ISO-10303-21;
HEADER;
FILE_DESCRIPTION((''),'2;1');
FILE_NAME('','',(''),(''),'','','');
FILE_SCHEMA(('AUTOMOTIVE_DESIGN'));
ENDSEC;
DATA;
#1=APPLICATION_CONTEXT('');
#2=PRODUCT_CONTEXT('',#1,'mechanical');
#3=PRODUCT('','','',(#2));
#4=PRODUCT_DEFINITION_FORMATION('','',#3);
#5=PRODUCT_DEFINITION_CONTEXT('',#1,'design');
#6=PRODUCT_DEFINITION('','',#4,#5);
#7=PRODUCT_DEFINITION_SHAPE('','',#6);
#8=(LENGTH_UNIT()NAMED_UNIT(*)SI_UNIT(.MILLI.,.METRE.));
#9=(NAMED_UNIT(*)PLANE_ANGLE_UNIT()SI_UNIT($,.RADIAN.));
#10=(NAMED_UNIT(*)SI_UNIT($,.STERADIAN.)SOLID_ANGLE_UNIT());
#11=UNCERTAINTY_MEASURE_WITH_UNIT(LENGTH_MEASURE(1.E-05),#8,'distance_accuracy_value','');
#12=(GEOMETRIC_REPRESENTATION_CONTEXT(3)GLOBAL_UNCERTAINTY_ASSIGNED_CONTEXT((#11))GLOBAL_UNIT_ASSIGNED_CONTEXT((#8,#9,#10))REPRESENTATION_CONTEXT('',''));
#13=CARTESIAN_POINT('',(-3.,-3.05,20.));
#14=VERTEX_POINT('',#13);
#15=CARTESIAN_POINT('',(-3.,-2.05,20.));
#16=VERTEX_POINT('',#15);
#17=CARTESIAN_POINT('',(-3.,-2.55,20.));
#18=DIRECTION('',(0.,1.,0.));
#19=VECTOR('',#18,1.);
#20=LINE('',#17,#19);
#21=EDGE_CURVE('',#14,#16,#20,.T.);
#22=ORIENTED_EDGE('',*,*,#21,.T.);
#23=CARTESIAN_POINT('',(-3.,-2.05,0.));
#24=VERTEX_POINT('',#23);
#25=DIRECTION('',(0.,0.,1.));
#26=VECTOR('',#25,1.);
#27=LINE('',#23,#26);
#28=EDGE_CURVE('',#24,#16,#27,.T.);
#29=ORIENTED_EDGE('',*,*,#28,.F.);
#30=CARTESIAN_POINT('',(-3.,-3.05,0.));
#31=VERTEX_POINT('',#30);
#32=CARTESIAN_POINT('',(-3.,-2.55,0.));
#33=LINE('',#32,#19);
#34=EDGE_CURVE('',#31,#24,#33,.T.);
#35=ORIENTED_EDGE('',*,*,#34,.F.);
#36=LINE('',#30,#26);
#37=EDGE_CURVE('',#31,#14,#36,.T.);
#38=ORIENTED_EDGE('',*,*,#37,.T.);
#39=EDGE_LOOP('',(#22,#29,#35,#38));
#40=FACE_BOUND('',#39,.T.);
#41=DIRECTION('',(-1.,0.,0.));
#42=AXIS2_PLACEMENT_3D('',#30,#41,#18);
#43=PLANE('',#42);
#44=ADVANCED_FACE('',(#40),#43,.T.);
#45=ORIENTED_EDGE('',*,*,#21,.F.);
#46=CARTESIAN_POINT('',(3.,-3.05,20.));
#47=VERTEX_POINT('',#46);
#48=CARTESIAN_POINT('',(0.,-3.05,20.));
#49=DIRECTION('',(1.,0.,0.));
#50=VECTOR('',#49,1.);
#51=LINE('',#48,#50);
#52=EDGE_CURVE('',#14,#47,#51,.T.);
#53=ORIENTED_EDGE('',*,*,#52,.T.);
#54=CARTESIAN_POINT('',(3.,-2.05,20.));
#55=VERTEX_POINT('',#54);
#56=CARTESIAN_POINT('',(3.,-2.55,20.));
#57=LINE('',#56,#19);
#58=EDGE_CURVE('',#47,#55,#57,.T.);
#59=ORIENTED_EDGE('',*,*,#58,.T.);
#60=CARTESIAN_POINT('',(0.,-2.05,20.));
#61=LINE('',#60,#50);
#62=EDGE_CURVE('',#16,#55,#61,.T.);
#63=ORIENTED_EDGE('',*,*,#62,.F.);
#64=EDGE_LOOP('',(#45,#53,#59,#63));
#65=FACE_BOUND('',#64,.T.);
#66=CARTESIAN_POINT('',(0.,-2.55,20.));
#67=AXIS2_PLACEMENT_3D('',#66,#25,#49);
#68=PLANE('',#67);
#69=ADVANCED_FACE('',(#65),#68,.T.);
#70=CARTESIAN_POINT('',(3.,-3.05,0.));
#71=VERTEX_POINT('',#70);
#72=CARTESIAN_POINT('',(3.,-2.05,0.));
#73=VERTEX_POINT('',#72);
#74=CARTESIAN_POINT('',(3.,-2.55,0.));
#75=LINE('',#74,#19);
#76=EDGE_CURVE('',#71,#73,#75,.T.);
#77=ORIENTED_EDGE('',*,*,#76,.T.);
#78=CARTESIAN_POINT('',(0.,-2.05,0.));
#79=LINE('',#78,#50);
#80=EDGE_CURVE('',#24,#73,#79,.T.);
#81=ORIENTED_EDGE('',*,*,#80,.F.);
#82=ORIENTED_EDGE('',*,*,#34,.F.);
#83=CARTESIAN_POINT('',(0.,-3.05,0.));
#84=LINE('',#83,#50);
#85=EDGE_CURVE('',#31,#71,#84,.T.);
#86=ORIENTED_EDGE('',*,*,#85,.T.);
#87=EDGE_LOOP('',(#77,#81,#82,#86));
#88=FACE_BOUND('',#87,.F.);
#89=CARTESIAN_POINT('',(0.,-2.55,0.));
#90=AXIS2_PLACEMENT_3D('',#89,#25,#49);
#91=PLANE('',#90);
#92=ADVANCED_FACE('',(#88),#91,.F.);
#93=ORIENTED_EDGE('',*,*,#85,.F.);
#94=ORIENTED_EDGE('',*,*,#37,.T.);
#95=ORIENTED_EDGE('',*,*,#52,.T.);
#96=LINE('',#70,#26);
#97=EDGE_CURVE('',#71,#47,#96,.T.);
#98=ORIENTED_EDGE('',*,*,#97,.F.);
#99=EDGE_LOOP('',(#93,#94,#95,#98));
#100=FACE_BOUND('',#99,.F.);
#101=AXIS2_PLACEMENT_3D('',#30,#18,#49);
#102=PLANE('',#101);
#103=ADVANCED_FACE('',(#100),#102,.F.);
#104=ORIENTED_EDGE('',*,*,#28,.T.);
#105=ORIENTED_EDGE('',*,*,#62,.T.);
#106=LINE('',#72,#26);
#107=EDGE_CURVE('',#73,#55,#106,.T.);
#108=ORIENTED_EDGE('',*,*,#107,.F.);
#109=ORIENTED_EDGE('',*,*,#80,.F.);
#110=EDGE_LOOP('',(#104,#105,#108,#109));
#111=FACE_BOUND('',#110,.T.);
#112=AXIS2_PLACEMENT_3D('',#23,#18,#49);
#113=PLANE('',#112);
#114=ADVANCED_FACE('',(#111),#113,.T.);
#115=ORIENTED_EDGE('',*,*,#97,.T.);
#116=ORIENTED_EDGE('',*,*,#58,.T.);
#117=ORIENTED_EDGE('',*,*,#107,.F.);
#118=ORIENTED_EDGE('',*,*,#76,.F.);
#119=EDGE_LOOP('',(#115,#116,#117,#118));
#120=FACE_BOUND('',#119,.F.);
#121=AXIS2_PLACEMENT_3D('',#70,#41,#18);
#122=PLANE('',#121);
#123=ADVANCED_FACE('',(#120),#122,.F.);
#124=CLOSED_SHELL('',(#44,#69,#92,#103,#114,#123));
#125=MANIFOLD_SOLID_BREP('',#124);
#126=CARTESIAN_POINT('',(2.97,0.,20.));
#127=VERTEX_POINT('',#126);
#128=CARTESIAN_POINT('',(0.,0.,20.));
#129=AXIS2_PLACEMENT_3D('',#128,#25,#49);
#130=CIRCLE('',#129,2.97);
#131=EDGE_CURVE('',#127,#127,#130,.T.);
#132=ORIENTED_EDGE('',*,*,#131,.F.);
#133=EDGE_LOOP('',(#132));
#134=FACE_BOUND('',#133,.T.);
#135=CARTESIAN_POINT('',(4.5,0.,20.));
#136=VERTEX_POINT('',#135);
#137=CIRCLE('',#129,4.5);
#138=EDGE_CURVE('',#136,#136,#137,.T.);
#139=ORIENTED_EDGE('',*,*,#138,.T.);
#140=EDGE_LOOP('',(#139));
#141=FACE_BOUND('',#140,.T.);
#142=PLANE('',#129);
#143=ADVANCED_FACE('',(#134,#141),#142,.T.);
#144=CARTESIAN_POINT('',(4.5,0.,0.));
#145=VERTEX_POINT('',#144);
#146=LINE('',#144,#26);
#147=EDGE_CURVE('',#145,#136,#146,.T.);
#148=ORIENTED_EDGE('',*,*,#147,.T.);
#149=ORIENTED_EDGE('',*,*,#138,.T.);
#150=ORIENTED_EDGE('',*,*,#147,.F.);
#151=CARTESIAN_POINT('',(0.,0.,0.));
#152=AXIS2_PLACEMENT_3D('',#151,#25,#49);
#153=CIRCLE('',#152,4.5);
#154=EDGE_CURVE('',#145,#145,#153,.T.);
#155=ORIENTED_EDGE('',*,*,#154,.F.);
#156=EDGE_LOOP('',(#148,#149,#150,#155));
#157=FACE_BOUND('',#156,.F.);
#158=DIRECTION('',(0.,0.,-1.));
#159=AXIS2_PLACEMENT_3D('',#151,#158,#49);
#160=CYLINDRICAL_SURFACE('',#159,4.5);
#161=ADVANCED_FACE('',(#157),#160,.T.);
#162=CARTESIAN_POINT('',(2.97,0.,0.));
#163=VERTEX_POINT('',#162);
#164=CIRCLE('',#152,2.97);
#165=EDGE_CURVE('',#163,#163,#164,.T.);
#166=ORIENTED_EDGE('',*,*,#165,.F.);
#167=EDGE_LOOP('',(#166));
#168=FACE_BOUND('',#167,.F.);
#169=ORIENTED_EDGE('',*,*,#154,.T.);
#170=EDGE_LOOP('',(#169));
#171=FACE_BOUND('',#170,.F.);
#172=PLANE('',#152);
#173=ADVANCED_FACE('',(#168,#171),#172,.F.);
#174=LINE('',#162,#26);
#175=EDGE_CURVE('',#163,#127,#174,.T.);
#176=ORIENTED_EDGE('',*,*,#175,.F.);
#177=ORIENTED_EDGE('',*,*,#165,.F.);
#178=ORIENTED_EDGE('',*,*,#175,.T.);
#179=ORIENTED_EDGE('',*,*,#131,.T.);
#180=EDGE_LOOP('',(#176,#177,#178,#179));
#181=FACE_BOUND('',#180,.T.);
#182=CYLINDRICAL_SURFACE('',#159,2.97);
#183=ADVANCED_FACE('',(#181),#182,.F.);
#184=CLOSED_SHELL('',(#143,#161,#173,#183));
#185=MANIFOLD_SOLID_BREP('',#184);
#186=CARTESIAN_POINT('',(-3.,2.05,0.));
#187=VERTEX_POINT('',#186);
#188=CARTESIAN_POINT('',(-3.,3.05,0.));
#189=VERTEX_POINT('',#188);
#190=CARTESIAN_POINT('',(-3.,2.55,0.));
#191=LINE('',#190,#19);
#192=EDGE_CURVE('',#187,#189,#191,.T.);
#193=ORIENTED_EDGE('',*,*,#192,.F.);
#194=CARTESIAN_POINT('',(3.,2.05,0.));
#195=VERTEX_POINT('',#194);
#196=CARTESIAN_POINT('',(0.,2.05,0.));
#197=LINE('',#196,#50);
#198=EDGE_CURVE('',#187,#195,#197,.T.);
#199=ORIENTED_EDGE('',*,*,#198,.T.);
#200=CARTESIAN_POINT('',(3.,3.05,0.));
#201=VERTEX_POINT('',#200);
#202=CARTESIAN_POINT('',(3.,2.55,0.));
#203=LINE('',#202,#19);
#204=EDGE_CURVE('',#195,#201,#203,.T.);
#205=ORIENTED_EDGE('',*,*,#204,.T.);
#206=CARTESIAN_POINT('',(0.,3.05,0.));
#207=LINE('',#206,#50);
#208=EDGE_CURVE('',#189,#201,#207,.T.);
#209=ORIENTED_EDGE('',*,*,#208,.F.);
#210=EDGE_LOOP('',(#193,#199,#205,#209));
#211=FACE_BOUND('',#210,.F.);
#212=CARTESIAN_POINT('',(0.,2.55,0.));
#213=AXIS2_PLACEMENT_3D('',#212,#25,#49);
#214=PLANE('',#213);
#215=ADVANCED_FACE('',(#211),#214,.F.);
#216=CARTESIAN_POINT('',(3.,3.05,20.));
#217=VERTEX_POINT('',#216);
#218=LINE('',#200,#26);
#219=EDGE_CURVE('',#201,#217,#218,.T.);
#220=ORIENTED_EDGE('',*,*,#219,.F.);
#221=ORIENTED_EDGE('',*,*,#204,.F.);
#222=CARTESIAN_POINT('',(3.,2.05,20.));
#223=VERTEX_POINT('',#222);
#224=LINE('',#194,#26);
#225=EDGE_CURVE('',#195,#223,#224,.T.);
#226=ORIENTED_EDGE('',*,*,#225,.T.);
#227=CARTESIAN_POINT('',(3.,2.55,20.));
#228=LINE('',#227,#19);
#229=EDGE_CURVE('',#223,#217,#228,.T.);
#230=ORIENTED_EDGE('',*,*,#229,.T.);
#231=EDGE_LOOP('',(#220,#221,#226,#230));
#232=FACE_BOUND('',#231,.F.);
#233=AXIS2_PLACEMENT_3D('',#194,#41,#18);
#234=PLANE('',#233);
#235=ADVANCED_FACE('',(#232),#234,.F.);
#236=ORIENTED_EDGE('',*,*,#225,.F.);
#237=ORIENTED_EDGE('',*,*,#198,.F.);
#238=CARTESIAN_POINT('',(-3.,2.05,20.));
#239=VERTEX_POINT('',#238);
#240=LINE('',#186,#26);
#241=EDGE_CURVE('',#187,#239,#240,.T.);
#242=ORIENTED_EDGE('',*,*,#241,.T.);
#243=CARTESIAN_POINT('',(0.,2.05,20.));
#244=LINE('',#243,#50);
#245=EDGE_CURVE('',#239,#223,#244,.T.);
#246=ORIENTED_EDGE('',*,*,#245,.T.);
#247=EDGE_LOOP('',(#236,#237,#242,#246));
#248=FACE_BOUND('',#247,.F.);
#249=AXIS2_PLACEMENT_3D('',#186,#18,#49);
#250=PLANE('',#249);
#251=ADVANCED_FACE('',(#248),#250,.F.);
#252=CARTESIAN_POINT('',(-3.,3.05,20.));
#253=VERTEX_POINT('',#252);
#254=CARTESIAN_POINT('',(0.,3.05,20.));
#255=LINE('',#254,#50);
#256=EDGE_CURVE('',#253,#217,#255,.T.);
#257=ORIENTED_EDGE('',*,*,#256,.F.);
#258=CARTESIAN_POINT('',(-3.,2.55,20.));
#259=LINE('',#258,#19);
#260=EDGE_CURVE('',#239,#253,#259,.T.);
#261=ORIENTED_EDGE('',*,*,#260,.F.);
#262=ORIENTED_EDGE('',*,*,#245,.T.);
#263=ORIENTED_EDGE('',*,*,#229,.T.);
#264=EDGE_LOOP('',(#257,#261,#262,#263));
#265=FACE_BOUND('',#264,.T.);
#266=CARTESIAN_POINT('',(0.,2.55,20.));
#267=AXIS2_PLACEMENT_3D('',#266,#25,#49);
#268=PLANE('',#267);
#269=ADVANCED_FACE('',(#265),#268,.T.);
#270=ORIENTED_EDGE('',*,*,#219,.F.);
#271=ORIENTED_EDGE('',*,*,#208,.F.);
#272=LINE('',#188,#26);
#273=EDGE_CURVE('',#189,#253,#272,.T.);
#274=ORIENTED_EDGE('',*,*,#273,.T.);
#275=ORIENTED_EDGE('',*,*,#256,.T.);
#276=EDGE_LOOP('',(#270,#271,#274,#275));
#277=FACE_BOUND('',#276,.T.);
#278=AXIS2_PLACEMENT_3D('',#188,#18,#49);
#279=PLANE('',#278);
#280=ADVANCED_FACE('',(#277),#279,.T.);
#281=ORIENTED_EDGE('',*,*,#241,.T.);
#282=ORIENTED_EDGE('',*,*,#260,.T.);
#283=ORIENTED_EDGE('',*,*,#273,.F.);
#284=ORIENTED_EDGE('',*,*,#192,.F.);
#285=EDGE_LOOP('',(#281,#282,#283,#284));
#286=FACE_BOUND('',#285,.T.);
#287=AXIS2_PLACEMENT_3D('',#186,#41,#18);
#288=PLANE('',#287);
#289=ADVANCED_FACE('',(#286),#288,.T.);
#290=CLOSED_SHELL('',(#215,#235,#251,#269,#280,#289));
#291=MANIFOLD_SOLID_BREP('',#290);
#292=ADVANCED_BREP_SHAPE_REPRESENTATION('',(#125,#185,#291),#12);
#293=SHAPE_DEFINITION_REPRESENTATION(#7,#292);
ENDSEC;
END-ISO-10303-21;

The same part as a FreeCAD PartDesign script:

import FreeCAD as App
import Part
import Sketcher
from FreeCAD import Vector

doc = App.newDocument("Part")
body = doc.addObject("PartDesign::Body", "Body")

# Sketch on XY plane
sketch1 = body.newObject("Sketcher::SketchObject", "Sketch")
sketch1.AttachmentSupport = (doc.getObject("XY_Plane"), [""])
sketch1.MapMode = "FlatFace"
sketch1.addGeometry([
    Part.LineSegment(Vector(-3, 3, 0), Vector(-3, 2, 0)),
    Part.LineSegment(Vector(-3, 2, 0), Vector(3, 2, 0)),
    Part.LineSegment(Vector(3, 2, 0), Vector(3, 3, 0)),
    Part.LineSegment(Vector(3, 3, 0), Vector(-3, 3, 0)),
], False)
sketch1.addConstraint([
    Sketcher.Constraint("Coincident", 0, 2, 1, 1),
    Sketcher.Constraint("Coincident", 1, 2, 2, 1),
    Sketcher.Constraint("Coincident", 2, 2, 3, 1),
    Sketcher.Constraint("Coincident", 3, 2, 0, 1),
    Sketcher.Constraint("Vertical", 0),
    Sketcher.Constraint("Horizontal", 1),
    Sketcher.Constraint("Vertical", 2),
    Sketcher.Constraint("Horizontal", 3),
    Sketcher.Constraint("DistanceX", 1, 1, 1, 2, 6.0),
    Sketcher.Constraint("DistanceY", 0, 2, 0, 1, 1.0),
    Sketcher.Constraint("DistanceX", 0, 2, -1, 1, 3.0),
    Sketcher.Constraint("DistanceY", -1, 1, 0, 2, 2.05),
])
pad1 = body.newObject("PartDesign::Pad", "Pad")
pad1.Profile = sketch1
pad1.Length = 20
body2 = doc.addObject("PartDesign::Body", "Body001")

# Sketch on XY plane
sketch2 = body2.newObject("Sketcher::SketchObject", "Sketch001")
sketch2.AttachmentSupport = (doc.getObject("XY_Plane001"), [""])
sketch2.MapMode = "FlatFace"
sketch2.addGeometry([
    Part.LineSegment(Vector(-3, -2, 0), Vector(-3, -3, 0)),
    Part.LineSegment(Vector(-3, -3, 0), Vector(3, -3, 0)),
    Part.LineSegment(Vector(3, -3, 0), Vector(3, -2, 0)),
    Part.LineSegment(Vector(3, -2, 0), Vector(-3, -2, 0)),
], False)
sketch2.addConstraint([
    Sketcher.Constraint("Coincident", 0, 2, 1, 1),
    Sketcher.Constraint("Coincident", 1, 2, 2, 1),
    Sketcher.Constraint("Coincident", 2, 2, 3, 1),
    Sketcher.Constraint("Coincident", 3, 2, 0, 1),
    Sketcher.Constraint("Vertical", 0),
    Sketcher.Constraint("Horizontal", 1),
    Sketcher.Constraint("Vertical", 2),
    Sketcher.Constraint("Horizontal", 3),
    Sketcher.Constraint("DistanceX", 1, 1, 1, 2, 6.0),
    Sketcher.Constraint("DistanceY", 0, 2, 0, 1, 1.0),
    Sketcher.Constraint("DistanceX", 0, 2, -1, 1, 3.0),
    Sketcher.Constraint("DistanceY", 0, 2, -1, 1, 3.05),
])
pad2 = body2.newObject("PartDesign::Pad", "Pad001")
pad2.Profile = sketch2
pad2.Length = 20
body3 = doc.addObject("PartDesign::Body", "Body002")

# Sketch on XY plane
sketch3 = body3.newObject("Sketcher::SketchObject", "Sketch002")
sketch3.AttachmentSupport = (doc.getObject("XY_Plane002"), [""])
sketch3.MapMode = "FlatFace"
sketch3.addGeometry(Part.Circle(Vector(0, 0, 0), Vector(0, 0, 1), 3), False)
sketch3.addConstraint([
    Sketcher.Constraint("Coincident", 0, 3, -1, 1),
    Sketcher.Constraint("Diameter", 0, 5.94),
])
pad3 = body3.newObject("PartDesign::Pad", "Pad002")
pad3.Profile = sketch3
pad3.Length = 20
body4 = doc.addObject("PartDesign::Body", "Body003")

# Sketch on XY plane
sketch4 = body4.newObject("Sketcher::SketchObject", "Sketch003")
sketch4.AttachmentSupport = (doc.getObject("XY_Plane003"), [""])
sketch4.MapMode = "FlatFace"
sketch4.addGeometry(Part.Circle(Vector(0, 0, 0), Vector(0, 0, 1), 4.5), False)
sketch4.addConstraint([
    Sketcher.Constraint("Coincident", 0, 3, -1, 1),
    Sketcher.Constraint("Diameter", 0, 9.0),
])
pad4 = body4.newObject("PartDesign::Pad", "Pad003")
pad4.Profile = sketch4
pad4.Length = 20
doc.recompute()

boolean = body4.newObject("PartDesign::Boolean", "Boolean")
boolean.Type = "Cut"
boolean.addObjects([body3])

doc.recompute()
